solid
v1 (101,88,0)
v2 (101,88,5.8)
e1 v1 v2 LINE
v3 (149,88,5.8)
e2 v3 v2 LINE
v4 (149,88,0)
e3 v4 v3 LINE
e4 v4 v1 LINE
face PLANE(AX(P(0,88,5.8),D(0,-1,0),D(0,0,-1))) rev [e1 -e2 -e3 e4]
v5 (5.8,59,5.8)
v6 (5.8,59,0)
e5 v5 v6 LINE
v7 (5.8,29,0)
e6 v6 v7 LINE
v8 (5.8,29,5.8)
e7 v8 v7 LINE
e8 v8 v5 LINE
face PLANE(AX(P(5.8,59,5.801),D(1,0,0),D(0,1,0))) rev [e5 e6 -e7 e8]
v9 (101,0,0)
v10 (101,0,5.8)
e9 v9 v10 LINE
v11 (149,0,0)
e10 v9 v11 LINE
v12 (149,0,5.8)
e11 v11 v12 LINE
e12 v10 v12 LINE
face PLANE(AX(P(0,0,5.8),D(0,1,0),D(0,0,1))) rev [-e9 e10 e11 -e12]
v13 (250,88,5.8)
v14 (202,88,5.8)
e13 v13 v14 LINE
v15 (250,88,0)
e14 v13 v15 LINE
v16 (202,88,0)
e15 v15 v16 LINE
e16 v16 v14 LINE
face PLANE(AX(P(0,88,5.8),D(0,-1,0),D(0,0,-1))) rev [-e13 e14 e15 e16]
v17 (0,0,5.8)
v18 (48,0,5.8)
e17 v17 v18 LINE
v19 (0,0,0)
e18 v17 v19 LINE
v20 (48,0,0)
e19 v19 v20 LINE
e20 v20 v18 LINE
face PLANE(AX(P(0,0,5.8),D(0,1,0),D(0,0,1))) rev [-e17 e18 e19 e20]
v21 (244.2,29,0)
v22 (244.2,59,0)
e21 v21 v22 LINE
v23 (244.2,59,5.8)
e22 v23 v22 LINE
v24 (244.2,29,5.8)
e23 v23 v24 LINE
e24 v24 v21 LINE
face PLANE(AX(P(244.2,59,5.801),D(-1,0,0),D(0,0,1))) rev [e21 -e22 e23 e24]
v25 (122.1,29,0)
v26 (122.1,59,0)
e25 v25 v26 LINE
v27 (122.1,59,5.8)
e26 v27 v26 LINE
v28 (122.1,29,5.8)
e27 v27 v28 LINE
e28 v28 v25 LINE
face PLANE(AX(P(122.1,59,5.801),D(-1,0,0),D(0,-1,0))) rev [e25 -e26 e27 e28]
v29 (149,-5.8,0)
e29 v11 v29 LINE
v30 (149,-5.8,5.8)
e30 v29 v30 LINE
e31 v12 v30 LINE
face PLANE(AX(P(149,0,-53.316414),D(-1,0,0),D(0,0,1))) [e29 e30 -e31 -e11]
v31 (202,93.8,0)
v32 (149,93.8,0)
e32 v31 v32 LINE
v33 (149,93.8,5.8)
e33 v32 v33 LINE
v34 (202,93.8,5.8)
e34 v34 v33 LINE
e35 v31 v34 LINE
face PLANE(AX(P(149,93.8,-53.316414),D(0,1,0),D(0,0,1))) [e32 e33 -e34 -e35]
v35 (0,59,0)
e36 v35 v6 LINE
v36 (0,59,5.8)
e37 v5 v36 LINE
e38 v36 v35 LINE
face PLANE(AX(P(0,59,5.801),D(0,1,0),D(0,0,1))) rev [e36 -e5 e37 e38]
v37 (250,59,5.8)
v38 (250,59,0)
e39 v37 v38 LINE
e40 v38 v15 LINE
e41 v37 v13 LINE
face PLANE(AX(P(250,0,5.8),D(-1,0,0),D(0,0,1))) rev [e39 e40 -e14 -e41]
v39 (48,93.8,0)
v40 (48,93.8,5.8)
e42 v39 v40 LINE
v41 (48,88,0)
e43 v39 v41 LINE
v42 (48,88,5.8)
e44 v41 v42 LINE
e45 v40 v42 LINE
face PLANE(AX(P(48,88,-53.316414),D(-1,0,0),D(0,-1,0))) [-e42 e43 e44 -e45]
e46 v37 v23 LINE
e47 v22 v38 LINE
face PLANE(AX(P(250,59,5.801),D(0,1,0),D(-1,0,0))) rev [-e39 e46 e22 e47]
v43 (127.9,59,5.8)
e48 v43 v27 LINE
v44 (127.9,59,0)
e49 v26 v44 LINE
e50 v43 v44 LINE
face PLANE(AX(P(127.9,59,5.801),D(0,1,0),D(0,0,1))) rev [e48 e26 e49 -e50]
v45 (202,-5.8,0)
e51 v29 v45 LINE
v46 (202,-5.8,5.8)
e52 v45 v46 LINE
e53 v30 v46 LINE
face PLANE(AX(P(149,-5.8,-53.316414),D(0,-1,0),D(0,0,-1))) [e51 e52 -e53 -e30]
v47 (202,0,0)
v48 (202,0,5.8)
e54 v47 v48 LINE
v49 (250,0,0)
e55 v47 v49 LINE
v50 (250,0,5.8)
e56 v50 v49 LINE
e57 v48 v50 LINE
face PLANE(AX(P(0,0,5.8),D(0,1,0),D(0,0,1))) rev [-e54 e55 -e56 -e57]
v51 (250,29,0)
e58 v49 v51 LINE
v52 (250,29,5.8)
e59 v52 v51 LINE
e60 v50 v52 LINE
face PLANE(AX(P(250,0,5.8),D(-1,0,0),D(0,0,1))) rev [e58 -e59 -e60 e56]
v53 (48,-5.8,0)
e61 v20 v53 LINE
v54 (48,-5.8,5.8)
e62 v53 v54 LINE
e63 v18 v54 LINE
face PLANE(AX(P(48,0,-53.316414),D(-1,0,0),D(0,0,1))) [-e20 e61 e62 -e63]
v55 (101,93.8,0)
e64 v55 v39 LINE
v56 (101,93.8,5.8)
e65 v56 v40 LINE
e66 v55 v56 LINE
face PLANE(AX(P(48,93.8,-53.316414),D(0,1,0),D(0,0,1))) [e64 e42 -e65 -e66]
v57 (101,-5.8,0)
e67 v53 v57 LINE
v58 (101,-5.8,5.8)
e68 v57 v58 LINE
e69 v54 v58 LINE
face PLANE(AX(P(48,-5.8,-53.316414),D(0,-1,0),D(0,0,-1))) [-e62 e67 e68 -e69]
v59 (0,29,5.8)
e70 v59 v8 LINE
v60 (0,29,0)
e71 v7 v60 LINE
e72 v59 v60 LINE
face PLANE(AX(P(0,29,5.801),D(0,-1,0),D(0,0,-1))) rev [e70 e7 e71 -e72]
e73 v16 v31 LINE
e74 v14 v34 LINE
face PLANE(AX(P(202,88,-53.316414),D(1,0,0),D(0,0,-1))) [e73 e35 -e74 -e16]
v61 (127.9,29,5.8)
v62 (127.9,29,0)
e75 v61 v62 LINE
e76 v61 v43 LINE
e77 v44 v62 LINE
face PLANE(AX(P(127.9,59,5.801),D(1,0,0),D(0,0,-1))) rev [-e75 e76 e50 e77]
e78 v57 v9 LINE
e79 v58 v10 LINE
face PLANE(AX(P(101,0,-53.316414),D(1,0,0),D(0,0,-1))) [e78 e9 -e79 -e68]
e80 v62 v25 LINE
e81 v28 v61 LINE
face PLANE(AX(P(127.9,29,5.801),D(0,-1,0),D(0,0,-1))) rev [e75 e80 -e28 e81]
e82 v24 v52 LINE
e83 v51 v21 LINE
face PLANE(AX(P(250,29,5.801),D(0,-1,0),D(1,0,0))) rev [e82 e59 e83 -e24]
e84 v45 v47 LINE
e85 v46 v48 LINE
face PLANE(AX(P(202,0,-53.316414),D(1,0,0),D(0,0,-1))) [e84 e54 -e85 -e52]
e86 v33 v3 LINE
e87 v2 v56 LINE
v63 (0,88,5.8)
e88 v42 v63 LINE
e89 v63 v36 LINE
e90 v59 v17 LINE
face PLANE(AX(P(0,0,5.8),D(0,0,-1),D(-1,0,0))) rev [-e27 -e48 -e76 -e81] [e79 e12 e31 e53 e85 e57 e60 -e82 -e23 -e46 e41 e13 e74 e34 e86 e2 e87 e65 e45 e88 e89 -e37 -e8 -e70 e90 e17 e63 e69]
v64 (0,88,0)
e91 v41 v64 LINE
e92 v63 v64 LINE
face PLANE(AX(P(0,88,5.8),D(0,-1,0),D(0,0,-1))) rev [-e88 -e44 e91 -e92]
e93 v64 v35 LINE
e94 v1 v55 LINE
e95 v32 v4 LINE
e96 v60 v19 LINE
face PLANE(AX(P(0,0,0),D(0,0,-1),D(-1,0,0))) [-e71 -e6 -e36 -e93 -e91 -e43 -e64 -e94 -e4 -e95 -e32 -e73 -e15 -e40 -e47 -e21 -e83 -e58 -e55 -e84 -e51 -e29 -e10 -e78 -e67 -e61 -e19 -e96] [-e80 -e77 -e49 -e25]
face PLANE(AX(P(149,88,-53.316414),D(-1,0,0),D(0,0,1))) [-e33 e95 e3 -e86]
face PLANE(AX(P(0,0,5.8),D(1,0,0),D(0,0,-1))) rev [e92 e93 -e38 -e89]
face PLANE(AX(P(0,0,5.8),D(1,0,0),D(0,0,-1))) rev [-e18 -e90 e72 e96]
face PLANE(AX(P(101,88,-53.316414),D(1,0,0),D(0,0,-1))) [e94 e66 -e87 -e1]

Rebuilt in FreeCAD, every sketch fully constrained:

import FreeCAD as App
import Part
import Sketcher

V = App.Vector
Q = App.Units.Quantity

doc = App.newDocument("Part")
params = doc.addObject("Spreadsheet::Sheet", "Params")
for row, (alias, value) in enumerate([
    ("sketch1_width", "250 mm"),
    ("sketch1_height", "88 mm"),
    ("pad1_length", "5.8 mm"),
    ("sketch2_height", "30 mm"),
    ("sketch2_width", "5.8 mm"),
    ("sketch3_height", "30 mm"),
    ("sketch3_width", "5.8 mm"),
    ("sketch4_height", "30 mm"),
    ("sketch4_width", "5.8 mm"),
    ("sketch5_width", "53 mm"),
    ("sketch5_height", "5.8 mm"),
    ("pad2_length", "5.8 mm"),
], start=1):
    params.set(f"A{row}", alias)
    params.set(f"B{row}", "=" + value)
    params.setAlias(f"B{row}", alias)

body = doc.addObject("PartDesign::Body", "Body")

# Sketch on XY plane
sketch1 = body.newObject("Sketcher::SketchObject", "Sketch")
sketch1.AttachmentSupport = (doc.getObject("XY_Plane"), [""])
sketch1.MapMode = "FlatFace"
sketch1.addGeometry([
    Part.LineSegment(V(0, 88, 0), V(0, 0, 0)),
    Part.LineSegment(V(0, 0, 0), V(250, 0, 0)),
    Part.LineSegment(V(250, 0, 0), V(250, 88, 0)),
    Part.LineSegment(V(250, 88, 0), V(0, 88, 0)),
], False)
sketch1.addConstraint([
    Sketcher.Constraint("Coincident", 0, 2, 1, 1),
    Sketcher.Constraint("Coincident", 1, 2, 2, 1),
    Sketcher.Constraint("Coincident", 2, 2, 3, 1),
    Sketcher.Constraint("Coincident", 3, 2, 0, 1),
    Sketcher.Constraint("Vertical", 0),
    Sketcher.Constraint("Horizontal", 1),
    Sketcher.Constraint("Vertical", 2),
    Sketcher.Constraint("Horizontal", 3),
    Sketcher.Constraint("Coincident", 0, 2, -1, 1),
    Sketcher.Constraint("DistanceX", 1, 1, 1, 2, Q("250 mm")),
    Sketcher.Constraint("DistanceY", 0, 2, 0, 1, Q("88 mm")),
])
sketch1.setExpression("Constraints[9]", "Params.sketch1_width")
sketch1.setExpression("Constraints[10]", "Params.sketch1_height")
pad1 = body.newObject("PartDesign::Pad", "Pad")
pad1.Profile = sketch1
pad1.setExpression("Length", "Params.pad1_length")

# Sketch on XY plane
sketch2 = body.newObject("Sketcher::SketchObject", "Sketch001")
sketch2.AttachmentSupport = (doc.getObject("XY_Plane"), [""])
sketch2.MapMode = "FlatFace"
sketch2.addGeometry([
    Part.LineSegment(V(250, 59, 0), V(250, 29, 0)),
    Part.LineSegment(V(250, 29, 0), V(244.2, 29, 0)),
    Part.LineSegment(V(244.2, 29, 0), V(244.2, 59, 0)),
    Part.LineSegment(V(244.2, 59, 0), V(250, 59, 0)),
], False)
sketch2.addConstraint([
    Sketcher.Constraint("Coincident", 0, 2, 1, 1),
    Sketcher.Constraint("Coincident", 1, 2, 2, 1),
    Sketcher.Constraint("Coincident", 2, 2, 3, 1),
    Sketcher.Constraint("Coincident", 3, 2, 0, 1),
    Sketcher.Constraint("Vertical", 0),
    Sketcher.Constraint("Horizontal", 1),
    Sketcher.Constraint("Vertical", 2),
    Sketcher.Constraint("Horizontal", 3),
    Sketcher.Constraint("DistanceY", 0, 2, 0, 1, Q("30 mm")),
    Sketcher.Constraint("DistanceX", 1, 2, 1, 1, Q("5.8 mm")),
    Sketcher.Constraint("DistanceX", -1, 1, 0, 2, Q("250 mm")),
    Sketcher.Constraint("DistanceY", -1, 1, 0, 2, Q("29 mm")),
])
sketch2.setExpression("Constraints[8]", "Params.sketch2_height")
sketch2.setExpression("Constraints[9]", "Params.sketch2_width")
pocket1 = body.newObject("PartDesign::Pocket", "Pocket")
pocket1.Profile = sketch2
pocket1.Type = "UpToFirst"
pocket1.Reversed = True

# Sketch on XY plane
sketch3 = body.newObject("Sketcher::SketchObject", "Sketch002")
sketch3.AttachmentSupport = (doc.getObject("XY_Plane"), [""])
sketch3.MapMode = "FlatFace"
sketch3.addGeometry([
    Part.LineSegment(V(127.9, 59, 0), V(127.9, 29, 0)),
    Part.LineSegment(V(127.9, 29, 0), V(122.1, 29, 0)),
    Part.LineSegment(V(122.1, 29, 0), V(122.1, 59, 0)),
    Part.LineSegment(V(122.1, 59, 0), V(127.9, 59, 0)),
], False)
sketch3.addConstraint([
    Sketcher.Constraint("Coincident", 0, 2, 1, 1),
    Sketcher.Constraint("Coincident", 1, 2, 2, 1),
    Sketcher.Constraint("Coincident", 2, 2, 3, 1),
    Sketcher.Constraint("Coincident", 3, 2, 0, 1),
    Sketcher.Constraint("Vertical", 0),
    Sketcher.Constraint("Horizontal", 1),
    Sketcher.Constraint("Vertical", 2),
    Sketcher.Constraint("Horizontal", 3),
    Sketcher.Constraint("DistanceY", 0, 2, 0, 1, Q("30 mm")),
    Sketcher.Constraint("DistanceX", 1, 2, 1, 1, Q("5.8 mm")),
    Sketcher.Constraint("DistanceY", -1, 1, 0, 2, Q("29 mm")),
    Sketcher.Constraint("DistanceX", -1, 1, 0, 2, Q("127.9 mm")),
])
sketch3.setExpression("Constraints[8]", "Params.sketch3_height")
sketch3.setExpression("Constraints[9]", "Params.sketch3_width")
pocket2 = body.newObject("PartDesign::Pocket", "Pocket001")
pocket2.Profile = sketch3
pocket2.Type = "UpToFirst"
pocket2.Reversed = True

# Sketch on XY plane
sketch4 = body.newObject("Sketcher::SketchObject", "Sketch003")
sketch4.AttachmentSupport = (doc.getObject("XY_Plane"), [""])
sketch4.MapMode = "FlatFace"
sketch4.addGeometry([
    Part.LineSegment(V(5.8, 59, 0), V(5.8, 29, 0)),
    Part.LineSegment(V(5.8, 29, 0), V(0, 29, 0)),
    Part.LineSegment(V(0, 29, 0), V(0, 59, 0)),
    Part.LineSegment(V(0, 59, 0), V(5.8, 59, 0)),
], False)
sketch4.addConstraint([
    Sketcher.Constraint("Coincident", 0, 2, 1, 1),
    Sketcher.Constraint("Coincident", 1, 2, 2, 1),
    Sketcher.Constraint("Coincident", 2, 2, 3, 1),
    Sketcher.Constraint("Coincident", 3, 2, 0, 1),
    Sketcher.Constraint("Vertical", 0),
    Sketcher.Constraint("Horizontal", 1),
    Sketcher.Constraint("Vertical", 2),
    Sketcher.Constraint("Horizontal", 3),
    Sketcher.Constraint("PointOnObject", 1, 2, -2),
    Sketcher.Constraint("DistanceY", 0, 2, 0, 1, Q("30 mm")),
    Sketcher.Constraint("DistanceX", 1, 2, 1, 1, Q("5.8 mm")),
    Sketcher.Constraint("DistanceY", -1, 1, 0, 2, Q("29 mm")),
])
sketch4.setExpression("Constraints[9]", "Params.sketch4_height")
sketch4.setExpression("Constraints[10]", "Params.sketch4_width")
pocket3 = body.newObject("PartDesign::Pocket", "Pocket002")
pocket3.Profile = sketch4
pocket3.Type = "UpToFirst"
pocket3.Reversed = True

# Sketch on XY plane
sketch5 = body.newObject("Sketcher::SketchObject", "Sketch004")
sketch5.AttachmentSupport = (doc.getObject("XY_Plane"), [""])
sketch5.MapMode = "FlatFace"
sketch5.AttachmentOffset = App.Placement(V(0, 0, 5.8), App.Rotation())
sketch5.addGeometry([
    Part.LineSegment(V(48, 93.8, 0), V(48, 88, 0)),  # 0
    Part.LineSegment(V(48, 88, 0), V(101, 88, 0)),  # 1
    Part.LineSegment(V(101, 88, 0), V(101, 93.8, 0)),  # 2
    Part.LineSegment(V(101, 93.8, 0), V(48, 93.8, 0)),  # 3
    Part.LineSegment(V(149, 93.8, 0), V(149, 88, 0)),  # 4
    Part.LineSegment(V(149, 88, 0), V(202, 88, 0)),  # 5
    Part.LineSegment(V(202, 88, 0), V(202, 93.8, 0)),  # 6
    Part.LineSegment(V(202, 93.8, 0), V(149, 93.8, 0)),  # 7
    Part.LineSegment(V(48, 0, 0), V(48, -5.8, 0)),  # 8
    Part.LineSegment(V(48, -5.8, 0), V(101, -5.8, 0)),  # 9
    Part.LineSegment(V(101, -5.8, 0), V(101, 0, 0)),  # 10
    Part.LineSegment(V(101, 0, 0), V(48, 0, 0)),  # 11
    Part.LineSegment(V(149, 0, 0), V(149, -5.8, 0)),  # 12
    Part.LineSegment(V(149, -5.8, 0), V(202, -5.8, 0)),  # 13
    Part.LineSegment(V(202, -5.8, 0), V(202, 0, 0)),  # 14
    Part.LineSegment(V(202, 0, 0), V(149, 0, 0)),  # 15
], False)
sketch5.addConstraint([
    Sketcher.Constraint("Coincident", 0, 2, 1, 1),
    Sketcher.Constraint("Coincident", 1, 2, 2, 1),
    Sketcher.Constraint("Coincident", 2, 2, 3, 1),
    Sketcher.Constraint("Coincident", 3, 2, 0, 1),
    Sketcher.Constraint("Coincident", 4, 2, 5, 1),
    Sketcher.Constraint("Coincident", 5, 2, 6, 1),
    Sketcher.Constraint("Coincident", 6, 2, 7, 1),
    Sketcher.Constraint("Coincident", 7, 2, 4, 1),
    Sketcher.Constraint("Coincident", 8, 2, 9, 1),
    Sketcher.Constraint("Coincident", 9, 2, 10, 1),
    Sketcher.Constraint("Coincident", 10, 2, 11, 1),
    Sketcher.Constraint("Coincident", 11, 2, 8, 1),
    Sketcher.Constraint("Coincident", 12, 2, 13, 1),
    Sketcher.Constraint("Coincident", 13, 2, 14, 1),
    Sketcher.Constraint("Coincident", 14, 2, 15, 1),
    Sketcher.Constraint("Coincident", 15, 2, 12, 1),
    Sketcher.Constraint("Vertical", 0),
    Sketcher.Constraint("Horizontal", 1),
    Sketcher.Constraint("Vertical", 2),
    Sketcher.Constraint("Horizontal", 3),
    Sketcher.Constraint("Vertical", 4),
    Sketcher.Constraint("Horizontal", 5),
    Sketcher.Constraint("Vertical", 6),
    Sketcher.Constraint("Horizontal", 7),
    Sketcher.Constraint("Vertical", 8),
    Sketcher.Constraint("Horizontal", 9),
    Sketcher.Constraint("Vertical", 10),
    Sketcher.Constraint("Horizontal", 11),
    Sketcher.Constraint("Vertical", 12),
    Sketcher.Constraint("Horizontal", 13),
    Sketcher.Constraint("Vertical", 14),
    Sketcher.Constraint("Horizontal", 15),
    Sketcher.Constraint("PointOnObject", 10, 2, -1),
    Sketcher.Constraint("PointOnObject", 14, 2, -1),
    Sketcher.Constraint("Horizontal", 1, 2, 4, 2),
    Sketcher.Constraint("Horizontal", 3, 2, 6, 2),
    Sketcher.Constraint("Horizontal", 9, 2, 12, 2),
    Sketcher.Constraint("Vertical", 3, 2, 8, 2),
    Sketcher.Constraint("Vertical", 2, 2, 9, 2),
    Sketcher.Constraint("Vertical", 7, 2, 12, 2),
    Sketcher.Constraint("Vertical", 6, 2, 13, 2),
    Sketcher.Constraint("Equal", 3, 5),
    Sketcher.Constraint("Equal", 6, 8),
    Sketcher.Constraint("DistanceX", 1, 1, 1, 2, Q("53 mm")),
    Sketcher.Constraint("DistanceY", 0, 2, 0, 1, Q("5.8 mm")),
    Sketcher.Constraint("DistanceX", -1, 1, 0, 2, Q("48 mm")),
    Sketcher.Constraint("DistanceY", -1, 1, 0, 2, Q("88 mm")),
    Sketcher.Constraint("DistanceX", -1, 1, 4, 2, Q("149 mm")),
])
sketch5.setExpression("Constraints[43]", "Params.sketch5_width")
sketch5.setExpression("Constraints[44]", "Params.sketch5_height")
pad2 = body.newObject("PartDesign::Pad", "Pad001")
pad2.Profile = sketch5
pad2.setExpression("Length", "Params.pad2_length")
pad2.Reversed = True

doc.recompute()
